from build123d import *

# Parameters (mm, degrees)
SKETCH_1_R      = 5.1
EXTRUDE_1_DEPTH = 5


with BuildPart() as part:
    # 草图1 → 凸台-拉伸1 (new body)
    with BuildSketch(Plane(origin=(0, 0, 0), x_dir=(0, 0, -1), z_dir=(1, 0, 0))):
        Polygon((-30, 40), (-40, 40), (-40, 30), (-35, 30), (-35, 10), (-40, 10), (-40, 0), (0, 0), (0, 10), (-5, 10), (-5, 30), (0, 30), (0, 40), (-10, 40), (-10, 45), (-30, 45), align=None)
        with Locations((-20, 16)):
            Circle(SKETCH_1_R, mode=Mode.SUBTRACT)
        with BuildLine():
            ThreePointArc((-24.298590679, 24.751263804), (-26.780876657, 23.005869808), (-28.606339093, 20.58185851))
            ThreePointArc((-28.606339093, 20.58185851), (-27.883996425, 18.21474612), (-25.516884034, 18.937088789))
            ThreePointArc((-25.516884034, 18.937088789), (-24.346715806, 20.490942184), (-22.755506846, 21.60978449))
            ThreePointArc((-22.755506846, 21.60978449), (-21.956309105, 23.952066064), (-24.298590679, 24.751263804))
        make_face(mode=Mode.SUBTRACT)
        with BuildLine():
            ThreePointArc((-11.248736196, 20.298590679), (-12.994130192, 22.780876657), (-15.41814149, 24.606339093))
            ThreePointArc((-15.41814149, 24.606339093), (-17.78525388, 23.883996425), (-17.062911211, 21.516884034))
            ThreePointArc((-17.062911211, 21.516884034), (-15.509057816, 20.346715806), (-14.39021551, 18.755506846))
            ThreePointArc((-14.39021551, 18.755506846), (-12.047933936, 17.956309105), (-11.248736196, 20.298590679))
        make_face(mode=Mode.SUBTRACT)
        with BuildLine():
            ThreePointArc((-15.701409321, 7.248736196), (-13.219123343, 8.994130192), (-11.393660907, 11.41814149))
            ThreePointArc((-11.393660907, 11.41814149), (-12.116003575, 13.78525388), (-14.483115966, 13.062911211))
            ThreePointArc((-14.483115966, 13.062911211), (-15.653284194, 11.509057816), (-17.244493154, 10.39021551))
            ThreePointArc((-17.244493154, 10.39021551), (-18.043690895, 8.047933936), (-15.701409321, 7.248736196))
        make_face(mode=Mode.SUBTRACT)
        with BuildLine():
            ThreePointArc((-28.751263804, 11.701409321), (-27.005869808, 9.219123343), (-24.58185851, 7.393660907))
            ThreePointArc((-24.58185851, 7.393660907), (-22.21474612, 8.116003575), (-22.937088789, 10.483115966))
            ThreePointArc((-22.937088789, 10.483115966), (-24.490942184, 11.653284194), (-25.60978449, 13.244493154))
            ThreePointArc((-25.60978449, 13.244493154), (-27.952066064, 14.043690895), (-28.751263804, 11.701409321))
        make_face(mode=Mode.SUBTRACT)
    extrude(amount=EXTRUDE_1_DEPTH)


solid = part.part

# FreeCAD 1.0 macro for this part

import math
import FreeCAD as App
import Part
import Sketcher
from FreeCAD import Vector


def add_polygon(sketch, points):
    """Adds a closed chain of lines whose ends are joined by coincident constraints."""
    first, n = sketch.GeometryCount, len(points)
    for a, b in zip(points, points[1:] + points[:1]):
        sketch.addGeometry(Part.LineSegment(App.Vector(*a, 0), App.Vector(*b, 0)), False)
    for i in range(n):
        sketch.addConstraint(Sketcher.Constraint("Coincident", first + i, 2, first + (i + 1) % n, 1))

doc = App.newDocument("Part")
params = doc.addObject("Spreadsheet::Sheet", "Params")
for row, (alias, value) in enumerate([
    ("sketch1_diameter", "10.2 mm"),
    ("sketch1_width", "10 mm"),
    ("sketch1_width2", "20 mm"),
    ("sketch1_width3", "5 mm"),
    ("sketch1_radius", "9.75 mm"),
    ("pad1_length", "5 mm"),
], start=1):
    params.set(f"A{row}", alias)
    params.set(f"B{row}", "=" + value)
    params.setAlias(f"B{row}", alias)

body = doc.addObject("PartDesign::Body", "Body")

# Sketch on YZ plane
sketch1 = body.newObject("Sketcher::SketchObject", "Sketch")
sketch1.AttachmentSupport = (doc.getObject("YZ_Plane"), [""])
sketch1.MapMode = "FlatFace"
add_polygon(sketch1, [(40, 30), (40, 40), (30, 40), (30, 35), (10, 35), (10, 40), (0, 40), (0, 0), (10, 0), (10, 5), (30, 5), (30, 0), (40, 0), (40, 10), (45, 10), (45, 30)])  # lines 0-15
sketch1.addGeometry(Part.ArcOfCircle(Part.Circle(Vector(16, 20, 0), Vector(0, 0, 1), 9.7), math.radians(116), math.radians(152)), False)  # 16
sketch1.addGeometry(Part.ArcOfCircle(Part.Circle(Vector(12.5, 27.2, 0), Vector(0, 0, 1), 1.8), math.radians(-64), math.radians(116)), False)  # 17
sketch1.addGeometry(Part.ArcOfCircle(Part.Circle(Vector(16, 20, 0), Vector(0, 0, 1), 6.3), math.radians(116), math.radians(152)), False)  # 18
sketch1.addGeometry(Part.ArcOfCircle(Part.Circle(Vector(8.9, 23.8, 0), Vector(0, 0, 1), 1.8), math.radians(152), math.radians(332)), False)  # 19
sketch1.addGeometry(Part.ArcOfCircle(Part.Circle(Vector(16, 20, 0), Vector(0, 0, 1), 9.7), math.radians(-154), math.radians(-118)), False)  # 20
sketch1.addGeometry(Part.ArcOfCircle(Part.Circle(Vector(8.8, 16.5, 0), Vector(0, 0, 1), 1.8), math.radians(26), math.radians(206)), False)  # 21
sketch1.addGeometry(Part.ArcOfCircle(Part.Circle(Vector(16, 20, 0), Vector(0, 0, 1), 6.3), math.radians(-154), math.radians(-118)), False)  # 22
sketch1.addGeometry(Part.ArcOfCircle(Part.Circle(Vector(12.2, 12.9, 0), Vector(0, 0, 1), 1.8), math.radians(-118), math.radians(62)), False)  # 23
sketch1.addGeometry(Part.ArcOfCircle(Part.Circle(Vector(16, 20, 0), Vector(0, 0, 1), 9.7), math.radians(26), math.radians(62)), False)  # 24
sketch1.addGeometry(Part.ArcOfCircle(Part.Circle(Vector(23.2, 23.5, 0), Vector(0, 0, 1), 1.8), math.radians(-154), math.radians(26)), False)  # 25
sketch1.addGeometry(Part.ArcOfCircle(Part.Circle(Vector(16, 20, 0), Vector(0, 0, 1), 6.3), math.radians(26), math.radians(62)), False)  # 26
sketch1.addGeometry(Part.ArcOfCircle(Part.Circle(Vector(19.8, 27.1, 0), Vector(0, 0, 1), 1.8), math.radians(62), math.radians(242)), False)  # 27
sketch1.addGeometry(Part.Circle(Vector(16, 20, 0), Vector(0, 0, 1), 5.1), False)  # 28
sketch1.addGeometry(Part.ArcOfCircle(Part.Circle(Vector(16, 20, 0), Vector(0, 0, 1), 9.7), math.radians(-64), math.radians(-28)), False)  # 29
sketch1.addGeometry(Part.ArcOfCircle(Part.Circle(Vector(19.5, 12.8, 0), Vector(0, 0, 1), 1.8), math.radians(116), math.radians(296)), False)  # 30
sketch1.addGeometry(Part.ArcOfCircle(Part.Circle(Vector(16, 20, 0), Vector(0, 0, 1), 6.3), math.radians(-64), math.radians(-28)), False)  # 31
sketch1.addGeometry(Part.ArcOfCircle(Part.Circle(Vector(23.1, 16.2, 0), Vector(0, 0, 1), 1.8), math.radians(-28), math.radians(152)), False)  # 32
sketch1.addConstraint([
    Sketcher.Constraint("Tangent", 16, 1, 17, 2),
    Sketcher.Constraint("Tangent", 17, 1, 18, 1),
    Sketcher.Constraint("Tangent", 18, 2, 19, 2),
    Sketcher.Constraint("Tangent", 19, 1, 16, 2),
    Sketcher.Constraint("Tangent", 20, 1, 21, 2),
    Sketcher.Constraint("Tangent", 21, 1, 22, 1),
    Sketcher.Constraint("Tangent", 22, 2, 23, 2),
    Sketcher.Constraint("Tangent", 23, 1, 20, 2),
    Sketcher.Constraint("Tangent", 24, 1, 25, 2),
    Sketcher.Constraint("Tangent", 25, 1, 26, 1),
    Sketcher.Constraint("Tangent", 26, 2, 27, 2),
    Sketcher.Constraint("Tangent", 27, 1, 24, 2),
    Sketcher.Constraint("Tangent", 29, 1, 30, 2),
    Sketcher.Constraint("Tangent", 30, 1, 31, 1),
    Sketcher.Constraint("Tangent", 31, 2, 32, 2),
    Sketcher.Constraint("Tangent", 32, 1, 29, 2),
    Sketcher.Constraint("Vertical", 0),
    Sketcher.Constraint("Horizontal", 1),
    Sketcher.Constraint("Vertical", 2),
    Sketcher.Constraint("Horizontal", 3),
    Sketcher.Constraint("Vertical", 4),
    Sketcher.Constraint("Horizontal", 5),
    Sketcher.Constraint("Vertical", 6),
    Sketcher.Constraint("Horizontal", 7),
    Sketcher.Constraint("Vertical", 8),
    Sketcher.Constraint("Horizontal", 9),
    Sketcher.Constraint("Vertical", 10),
    Sketcher.Constraint("Horizontal", 11),
    Sketcher.Constraint("Vertical", 12),
    Sketcher.Constraint("Horizontal", 13),
    Sketcher.Constraint("Vertical", 14),
    Sketcher.Constraint("Horizontal", 15),
    Sketcher.Constraint("Coincident", 6, 2, -1, 1),
    Sketcher.Constraint("Coincident", 18, 3, 16, 3),
    Sketcher.Constraint("Coincident", 20, 3, 16, 3),
    Sketcher.Constraint("Coincident", 22, 3, 16, 3),
    Sketcher.Constraint("Coincident", 24, 3, 16, 3),
    Sketcher.Constraint("Coincident", 26, 3, 16, 3),
    Sketcher.Constraint("Coincident", 28, 3, 16, 3),
    Sketcher.Constraint("Coincident", 29, 3, 16, 3),
    Sketcher.Constraint("Coincident", 31, 3, 16, 3),
    Sketcher.Constraint("Equal", 16, 20),
    Sketcher.Constraint("Equal", 19, 21),
    Sketcher.Constraint("Equal", 20, 24),
    Sketcher.Constraint("Equal", 23, 25),
    Sketcher.Constraint("Equal", 24, 29),
    Sketcher.Constraint("Equal", 27, 30),
    Sketcher.Constraint("PointOnObject", 10, 2, -1),
    Sketcher.Constraint("Horizontal", 1, 2, 4, 2),
    Sketcher.Constraint("Vertical", 4, 2, 7, 2),
    Sketcher.Constraint("Vertical", 2, 2, 9, 2),
    Sketcher.Constraint("Vertical", 0, 2, 11, 2),
    Sketcher.Constraint("Equal", 1, 5),
    Sketcher.Constraint("Equal", 11, 0),
    Sketcher.Constraint("Equal", 15, 2),
    Sketcher.Constraint("Equal", 4, 8),
    Sketcher.Constraint("Equal", 0, 12),
    Sketcher.Constraint("Equal", 9, 14),
    Sketcher.Constraint("Diameter", 28, 10.2),
    Sketcher.Constraint("DistanceX", 1, 2, 1, 1, 10.0),
    Sketcher.Constraint("DistanceX", 3, 2, 3, 1, 20.0),
    Sketcher.Constraint("DistanceX", 13, 1, 13, 2, 5.0),
    Sketcher.Constraint("Radius", 16, 9.75),
    Sketcher.Constraint("Radius", 17, 1.75),
    Sketcher.Constraint("DistanceX", -1, 1, 16, 3, 16.0),
    Sketcher.Constraint("DistanceY", -1, 1, 16, 3, 20.0),
    Sketcher.Constraint("DistanceX", 21, 1, 18, 2, 0.0929),
    Sketcher.Constraint("DistanceY", 26, 2, 17, 1, 0.0929),
    Sketcher.Constraint("DistanceY", 30, 1, 22, 2, 0.0929),
    Sketcher.Constraint("DistanceX", 31, 2, 25, 1, 0.0929),
    Sketcher.Constraint("DistanceX", -1, 1, 17, 3, 12.472951),
    Sketcher.Constraint("DistanceX", -1, 1, 19, 3, 8.938388),
    Sketcher.Constraint("DistanceY", -1, 1, 23, 3, 12.938388),
    Sketcher.Constraint("DistanceY", -1, 1, 25, 3, 23.527049),
])
sketch1.setExpression("Constraints[74]", "Params.sketch1_diameter")
sketch1.setExpression("Constraints[75]", "Params.sketch1_width")
sketch1.setExpression("Constraints[76]", "Params.sketch1_width2")
sketch1.setExpression("Constraints[77]", "Params.sketch1_width3")
sketch1.setExpression("Constraints[78]", "Params.sketch1_radius")
pad1 = body.newObject("PartDesign::Pad", "Pad")
pad1.Profile = sketch1
pad1.setExpression("Length", "Params.pad1_length")

doc.recompute()
